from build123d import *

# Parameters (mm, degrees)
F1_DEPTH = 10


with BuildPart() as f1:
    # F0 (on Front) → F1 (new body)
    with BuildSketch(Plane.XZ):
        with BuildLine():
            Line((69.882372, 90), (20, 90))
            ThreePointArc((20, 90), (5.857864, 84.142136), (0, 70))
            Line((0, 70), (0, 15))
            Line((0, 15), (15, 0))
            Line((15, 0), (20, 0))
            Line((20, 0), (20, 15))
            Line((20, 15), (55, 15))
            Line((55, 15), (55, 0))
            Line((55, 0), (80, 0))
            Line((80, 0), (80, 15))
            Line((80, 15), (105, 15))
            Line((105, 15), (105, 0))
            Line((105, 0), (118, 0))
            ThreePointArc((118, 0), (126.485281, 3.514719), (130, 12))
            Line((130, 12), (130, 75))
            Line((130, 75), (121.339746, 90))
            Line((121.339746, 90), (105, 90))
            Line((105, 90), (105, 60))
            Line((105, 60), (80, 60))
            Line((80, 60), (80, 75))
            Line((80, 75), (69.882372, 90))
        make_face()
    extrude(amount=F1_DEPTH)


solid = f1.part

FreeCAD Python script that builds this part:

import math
import FreeCAD as App
import Part
import Sketcher
from FreeCAD import Vector
Q = App.Units.Quantity

doc = App.newDocument("Part")
body = doc.addObject("PartDesign::Body", "Body")

# Sketch on XZ plane
sketch1 = body.newObject("Sketcher::SketchObject", "Sketch")
sketch1.AttachmentSupport = (doc.getObject("XZ_Plane"), [""])
sketch1.MapMode = "FlatFace"
sketch1.addGeometry(Part.LineSegment(Vector(70, 90, 0), Vector(20, 90, 0)), False)
sketch1.addGeometry(Part.ArcOfCircle(Part.Circle(Vector(20, 70, 0), Vector(0, 0, 1), 20), math.radians(90), math.radians(180)), False)
sketch1.addGeometry(Part.LineSegment(Vector(0, 70, 0), Vector(0, 15, 0)), False)
sketch1.addGeometry(Part.LineSegment(Vector(0, 15, 0), Vector(15, 0, 0)), False)
sketch1.addGeometry(Part.LineSegment(Vector(15, 0, 0), Vector(20, 0, 0)), False)
sketch1.addGeometry(Part.LineSegment(Vector(20, 0, 0), Vector(20, 15, 0)), False)
sketch1.addGeometry(Part.LineSegment(Vector(20, 15, 0), Vector(55, 15, 0)), False)
sketch1.addGeometry(Part.LineSegment(Vector(55, 15, 0), Vector(55, 0, 0)), False)
sketch1.addGeometry(Part.LineSegment(Vector(55, 0, 0), Vector(80, 0, 0)), False)
sketch1.addGeometry(Part.LineSegment(Vector(80, 0, 0), Vector(80, 15, 0)), False)
sketch1.addGeometry(Part.LineSegment(Vector(80, 15, 0), Vector(105, 15, 0)), False)
sketch1.addGeometry(Part.LineSegment(Vector(105, 15, 0), Vector(105, 0, 0)), False)
sketch1.addGeometry(Part.LineSegment(Vector(105, 0, 0), Vector(118, 0, 0)), False)
sketch1.addGeometry(Part.ArcOfCircle(Part.Circle(Vector(118, 12, 0), Vector(0, 0, 1), 12), math.radians(-90), math.radians(0)), False)
sketch1.addGeometry(Part.LineSegment(Vector(130, 12, 0), Vector(130, 75, 0)), False)
sketch1.addGeometry(Part.LineSegment(Vector(130, 75, 0), Vector(121, 90, 0)), False)
sketch1.addGeometry(Part.LineSegment(Vector(121, 90, 0), Vector(105, 90, 0)), False)
sketch1.addGeometry(Part.LineSegment(Vector(105, 90, 0), Vector(105, 60, 0)), False)
sketch1.addGeometry(Part.LineSegment(Vector(105, 60, 0), Vector(80, 60, 0)), False)
sketch1.addGeometry(Part.LineSegment(Vector(80, 60, 0), Vector(80, 75, 0)), False)
sketch1.addGeometry(Part.LineSegment(Vector(80, 75, 0), Vector(70, 90, 0)), False)
sketch1.addConstraint(Sketcher.Constraint("Tangent", 0, 2, 1, 1))
sketch1.addConstraint(Sketcher.Constraint("Tangent", 1, 2, 2, 1))
sketch1.addConstraint(Sketcher.Constraint("Coincident", 2, 2, 3, 1))
sketch1.addConstraint(Sketcher.Constraint("Coincident", 3, 2, 4, 1))
sketch1.addConstraint(Sketcher.Constraint("Coincident", 4, 2, 5, 1))
sketch1.addConstraint(Sketcher.Constraint("Coincident", 5, 2, 6, 1))
sketch1.addConstraint(Sketcher.Constraint("Coincident", 6, 2, 7, 1))
sketch1.addConstraint(Sketcher.Constraint("Coincident", 7, 2, 8, 1))
sketch1.addConstraint(Sketcher.Constraint("Coincident", 8, 2, 9, 1))
sketch1.addConstraint(Sketcher.Constraint("Coincident", 9, 2, 10, 1))
sketch1.addConstraint(Sketcher.Constraint("Coincident", 10, 2, 11, 1))
sketch1.addConstraint(Sketcher.Constraint("Coincident", 11, 2, 12, 1))
sketch1.addConstraint(Sketcher.Constraint("Tangent", 12, 2, 13, 1))
sketch1.addConstraint(Sketcher.Constraint("Tangent", 13, 2, 14, 1))
sketch1.addConstraint(Sketcher.Constraint("Coincident", 14, 2, 15, 1))
sketch1.addConstraint(Sketcher.Constraint("Coincident", 15, 2, 16, 1))
sketch1.addConstraint(Sketcher.Constraint("Coincident", 16, 2, 17, 1))
sketch1.addConstraint(Sketcher.Constraint("Coincident", 17, 2, 18, 1))
sketch1.addConstraint(Sketcher.Constraint("Coincident", 18, 2, 19, 1))
sketch1.addConstraint(Sketcher.Constraint("Coincident", 19, 2, 20, 1))
sketch1.addConstraint(Sketcher.Constraint("Coincident", 20, 2, 0, 1))
sketch1.addConstraint(Sketcher.Constraint("Horizontal", 0))
sketch1.addConstraint(Sketcher.Constraint("Vertical", 2))
sketch1.addConstraint(Sketcher.Constraint("Horizontal", 4))
sketch1.addConstraint(Sketcher.Constraint("Vertical", 5))
sketch1.addConstraint(Sketcher.Constraint("Horizontal", 6))
sketch1.addConstraint(Sketcher.Constraint("Vertical", 7))
sketch1.addConstraint(Sketcher.Constraint("Horizontal", 8))
sketch1.addConstraint(Sketcher.Constraint("Vertical", 9))
sketch1.addConstraint(Sketcher.Constraint("Horizontal", 10))
sketch1.addConstraint(Sketcher.Constraint("Vertical", 11))
sketch1.addConstraint(Sketcher.Constraint("Horizontal", 12))
sketch1.addConstraint(Sketcher.Constraint("Vertical", 14))
sketch1.addConstraint(Sketcher.Constraint("Horizontal", 16))
sketch1.addConstraint(Sketcher.Constraint("Vertical", 17))
sketch1.addConstraint(Sketcher.Constraint("Horizontal", 18))
sketch1.addConstraint(Sketcher.Constraint("Vertical", 19))
sketch1.addConstraint(Sketcher.Constraint("PointOnObject", 1, 2, -2))
sketch1.addConstraint(Sketcher.Constraint("PointOnObject", 3, 2, -1))
sketch1.addConstraint(Sketcher.Constraint("PointOnObject", 7, 2, -1))
sketch1.addConstraint(Sketcher.Constraint("PointOnObject", 11, 2, -1))
sketch1.addConstraint(Sketcher.Constraint("Horizontal", 2, 2, 5, 2))
sketch1.addConstraint(Sketcher.Constraint("Horizontal", 6, 2, 9, 2))
sketch1.addConstraint(Sketcher.Constraint("Horizontal", 0, 2, 15, 2))
sketch1.addConstraint(Sketcher.Constraint("Horizontal", 14, 2, 19, 2))
sketch1.addConstraint(Sketcher.Constraint("Vertical", 0, 2, 4, 2))
sketch1.addConstraint(Sketcher.Constraint("Vertical", 11, 2, 16, 2))
sketch1.addConstraint(Sketcher.Constraint("Vertical", 9, 2, 18, 2))
sketch1.addConstraint(Sketcher.Constraint("Equal", 8, 10))
sketch1.addConstraint(Sketcher.Constraint("Equal", 11, 19))
sketch1.addConstraint(Sketcher.Constraint("Radius", 1, 19.999999))
sketch1.addConstraint(Sketcher.Constraint("Radius", 13, 12.000001))
sketch1.addConstraint(Sketcher.Constraint("DistanceX", 4, 1, 4, 2, 5.0))
sketch1.addConstraint(Sketcher.Constraint("DistanceX", 6, 1, 6, 2, 35.0))
sketch1.addConstraint(Sketcher.Constraint("DistanceX", 8, 1, 8, 2, 25.0))
sketch1.addConstraint(Sketcher.Constraint("DistanceX", 12, 1, 12, 2, 13.0))
sketch1.addConstraint(Sketcher.Constraint("DistanceY", 2, 2, 2, 1, 55.0))
sketch1.addConstraint(Sketcher.Constraint("DistanceY", 5, 1, 5, 2, 15.0))
sketch1.addConstraint(Sketcher.Constraint("DistanceY", 14, 1, 14, 2, 63.0))
sketch1.addConstraint(Sketcher.Constraint("Angle", 15, Q("120 deg")))
sketch1.addConstraint(Sketcher.Constraint("Angle", 20, Q("124.000001 deg")))
pad1 = body.newObject("PartDesign::Pad", "Pad")
pad1.Profile = sketch1
pad1.Length = 10

doc.recompute()
